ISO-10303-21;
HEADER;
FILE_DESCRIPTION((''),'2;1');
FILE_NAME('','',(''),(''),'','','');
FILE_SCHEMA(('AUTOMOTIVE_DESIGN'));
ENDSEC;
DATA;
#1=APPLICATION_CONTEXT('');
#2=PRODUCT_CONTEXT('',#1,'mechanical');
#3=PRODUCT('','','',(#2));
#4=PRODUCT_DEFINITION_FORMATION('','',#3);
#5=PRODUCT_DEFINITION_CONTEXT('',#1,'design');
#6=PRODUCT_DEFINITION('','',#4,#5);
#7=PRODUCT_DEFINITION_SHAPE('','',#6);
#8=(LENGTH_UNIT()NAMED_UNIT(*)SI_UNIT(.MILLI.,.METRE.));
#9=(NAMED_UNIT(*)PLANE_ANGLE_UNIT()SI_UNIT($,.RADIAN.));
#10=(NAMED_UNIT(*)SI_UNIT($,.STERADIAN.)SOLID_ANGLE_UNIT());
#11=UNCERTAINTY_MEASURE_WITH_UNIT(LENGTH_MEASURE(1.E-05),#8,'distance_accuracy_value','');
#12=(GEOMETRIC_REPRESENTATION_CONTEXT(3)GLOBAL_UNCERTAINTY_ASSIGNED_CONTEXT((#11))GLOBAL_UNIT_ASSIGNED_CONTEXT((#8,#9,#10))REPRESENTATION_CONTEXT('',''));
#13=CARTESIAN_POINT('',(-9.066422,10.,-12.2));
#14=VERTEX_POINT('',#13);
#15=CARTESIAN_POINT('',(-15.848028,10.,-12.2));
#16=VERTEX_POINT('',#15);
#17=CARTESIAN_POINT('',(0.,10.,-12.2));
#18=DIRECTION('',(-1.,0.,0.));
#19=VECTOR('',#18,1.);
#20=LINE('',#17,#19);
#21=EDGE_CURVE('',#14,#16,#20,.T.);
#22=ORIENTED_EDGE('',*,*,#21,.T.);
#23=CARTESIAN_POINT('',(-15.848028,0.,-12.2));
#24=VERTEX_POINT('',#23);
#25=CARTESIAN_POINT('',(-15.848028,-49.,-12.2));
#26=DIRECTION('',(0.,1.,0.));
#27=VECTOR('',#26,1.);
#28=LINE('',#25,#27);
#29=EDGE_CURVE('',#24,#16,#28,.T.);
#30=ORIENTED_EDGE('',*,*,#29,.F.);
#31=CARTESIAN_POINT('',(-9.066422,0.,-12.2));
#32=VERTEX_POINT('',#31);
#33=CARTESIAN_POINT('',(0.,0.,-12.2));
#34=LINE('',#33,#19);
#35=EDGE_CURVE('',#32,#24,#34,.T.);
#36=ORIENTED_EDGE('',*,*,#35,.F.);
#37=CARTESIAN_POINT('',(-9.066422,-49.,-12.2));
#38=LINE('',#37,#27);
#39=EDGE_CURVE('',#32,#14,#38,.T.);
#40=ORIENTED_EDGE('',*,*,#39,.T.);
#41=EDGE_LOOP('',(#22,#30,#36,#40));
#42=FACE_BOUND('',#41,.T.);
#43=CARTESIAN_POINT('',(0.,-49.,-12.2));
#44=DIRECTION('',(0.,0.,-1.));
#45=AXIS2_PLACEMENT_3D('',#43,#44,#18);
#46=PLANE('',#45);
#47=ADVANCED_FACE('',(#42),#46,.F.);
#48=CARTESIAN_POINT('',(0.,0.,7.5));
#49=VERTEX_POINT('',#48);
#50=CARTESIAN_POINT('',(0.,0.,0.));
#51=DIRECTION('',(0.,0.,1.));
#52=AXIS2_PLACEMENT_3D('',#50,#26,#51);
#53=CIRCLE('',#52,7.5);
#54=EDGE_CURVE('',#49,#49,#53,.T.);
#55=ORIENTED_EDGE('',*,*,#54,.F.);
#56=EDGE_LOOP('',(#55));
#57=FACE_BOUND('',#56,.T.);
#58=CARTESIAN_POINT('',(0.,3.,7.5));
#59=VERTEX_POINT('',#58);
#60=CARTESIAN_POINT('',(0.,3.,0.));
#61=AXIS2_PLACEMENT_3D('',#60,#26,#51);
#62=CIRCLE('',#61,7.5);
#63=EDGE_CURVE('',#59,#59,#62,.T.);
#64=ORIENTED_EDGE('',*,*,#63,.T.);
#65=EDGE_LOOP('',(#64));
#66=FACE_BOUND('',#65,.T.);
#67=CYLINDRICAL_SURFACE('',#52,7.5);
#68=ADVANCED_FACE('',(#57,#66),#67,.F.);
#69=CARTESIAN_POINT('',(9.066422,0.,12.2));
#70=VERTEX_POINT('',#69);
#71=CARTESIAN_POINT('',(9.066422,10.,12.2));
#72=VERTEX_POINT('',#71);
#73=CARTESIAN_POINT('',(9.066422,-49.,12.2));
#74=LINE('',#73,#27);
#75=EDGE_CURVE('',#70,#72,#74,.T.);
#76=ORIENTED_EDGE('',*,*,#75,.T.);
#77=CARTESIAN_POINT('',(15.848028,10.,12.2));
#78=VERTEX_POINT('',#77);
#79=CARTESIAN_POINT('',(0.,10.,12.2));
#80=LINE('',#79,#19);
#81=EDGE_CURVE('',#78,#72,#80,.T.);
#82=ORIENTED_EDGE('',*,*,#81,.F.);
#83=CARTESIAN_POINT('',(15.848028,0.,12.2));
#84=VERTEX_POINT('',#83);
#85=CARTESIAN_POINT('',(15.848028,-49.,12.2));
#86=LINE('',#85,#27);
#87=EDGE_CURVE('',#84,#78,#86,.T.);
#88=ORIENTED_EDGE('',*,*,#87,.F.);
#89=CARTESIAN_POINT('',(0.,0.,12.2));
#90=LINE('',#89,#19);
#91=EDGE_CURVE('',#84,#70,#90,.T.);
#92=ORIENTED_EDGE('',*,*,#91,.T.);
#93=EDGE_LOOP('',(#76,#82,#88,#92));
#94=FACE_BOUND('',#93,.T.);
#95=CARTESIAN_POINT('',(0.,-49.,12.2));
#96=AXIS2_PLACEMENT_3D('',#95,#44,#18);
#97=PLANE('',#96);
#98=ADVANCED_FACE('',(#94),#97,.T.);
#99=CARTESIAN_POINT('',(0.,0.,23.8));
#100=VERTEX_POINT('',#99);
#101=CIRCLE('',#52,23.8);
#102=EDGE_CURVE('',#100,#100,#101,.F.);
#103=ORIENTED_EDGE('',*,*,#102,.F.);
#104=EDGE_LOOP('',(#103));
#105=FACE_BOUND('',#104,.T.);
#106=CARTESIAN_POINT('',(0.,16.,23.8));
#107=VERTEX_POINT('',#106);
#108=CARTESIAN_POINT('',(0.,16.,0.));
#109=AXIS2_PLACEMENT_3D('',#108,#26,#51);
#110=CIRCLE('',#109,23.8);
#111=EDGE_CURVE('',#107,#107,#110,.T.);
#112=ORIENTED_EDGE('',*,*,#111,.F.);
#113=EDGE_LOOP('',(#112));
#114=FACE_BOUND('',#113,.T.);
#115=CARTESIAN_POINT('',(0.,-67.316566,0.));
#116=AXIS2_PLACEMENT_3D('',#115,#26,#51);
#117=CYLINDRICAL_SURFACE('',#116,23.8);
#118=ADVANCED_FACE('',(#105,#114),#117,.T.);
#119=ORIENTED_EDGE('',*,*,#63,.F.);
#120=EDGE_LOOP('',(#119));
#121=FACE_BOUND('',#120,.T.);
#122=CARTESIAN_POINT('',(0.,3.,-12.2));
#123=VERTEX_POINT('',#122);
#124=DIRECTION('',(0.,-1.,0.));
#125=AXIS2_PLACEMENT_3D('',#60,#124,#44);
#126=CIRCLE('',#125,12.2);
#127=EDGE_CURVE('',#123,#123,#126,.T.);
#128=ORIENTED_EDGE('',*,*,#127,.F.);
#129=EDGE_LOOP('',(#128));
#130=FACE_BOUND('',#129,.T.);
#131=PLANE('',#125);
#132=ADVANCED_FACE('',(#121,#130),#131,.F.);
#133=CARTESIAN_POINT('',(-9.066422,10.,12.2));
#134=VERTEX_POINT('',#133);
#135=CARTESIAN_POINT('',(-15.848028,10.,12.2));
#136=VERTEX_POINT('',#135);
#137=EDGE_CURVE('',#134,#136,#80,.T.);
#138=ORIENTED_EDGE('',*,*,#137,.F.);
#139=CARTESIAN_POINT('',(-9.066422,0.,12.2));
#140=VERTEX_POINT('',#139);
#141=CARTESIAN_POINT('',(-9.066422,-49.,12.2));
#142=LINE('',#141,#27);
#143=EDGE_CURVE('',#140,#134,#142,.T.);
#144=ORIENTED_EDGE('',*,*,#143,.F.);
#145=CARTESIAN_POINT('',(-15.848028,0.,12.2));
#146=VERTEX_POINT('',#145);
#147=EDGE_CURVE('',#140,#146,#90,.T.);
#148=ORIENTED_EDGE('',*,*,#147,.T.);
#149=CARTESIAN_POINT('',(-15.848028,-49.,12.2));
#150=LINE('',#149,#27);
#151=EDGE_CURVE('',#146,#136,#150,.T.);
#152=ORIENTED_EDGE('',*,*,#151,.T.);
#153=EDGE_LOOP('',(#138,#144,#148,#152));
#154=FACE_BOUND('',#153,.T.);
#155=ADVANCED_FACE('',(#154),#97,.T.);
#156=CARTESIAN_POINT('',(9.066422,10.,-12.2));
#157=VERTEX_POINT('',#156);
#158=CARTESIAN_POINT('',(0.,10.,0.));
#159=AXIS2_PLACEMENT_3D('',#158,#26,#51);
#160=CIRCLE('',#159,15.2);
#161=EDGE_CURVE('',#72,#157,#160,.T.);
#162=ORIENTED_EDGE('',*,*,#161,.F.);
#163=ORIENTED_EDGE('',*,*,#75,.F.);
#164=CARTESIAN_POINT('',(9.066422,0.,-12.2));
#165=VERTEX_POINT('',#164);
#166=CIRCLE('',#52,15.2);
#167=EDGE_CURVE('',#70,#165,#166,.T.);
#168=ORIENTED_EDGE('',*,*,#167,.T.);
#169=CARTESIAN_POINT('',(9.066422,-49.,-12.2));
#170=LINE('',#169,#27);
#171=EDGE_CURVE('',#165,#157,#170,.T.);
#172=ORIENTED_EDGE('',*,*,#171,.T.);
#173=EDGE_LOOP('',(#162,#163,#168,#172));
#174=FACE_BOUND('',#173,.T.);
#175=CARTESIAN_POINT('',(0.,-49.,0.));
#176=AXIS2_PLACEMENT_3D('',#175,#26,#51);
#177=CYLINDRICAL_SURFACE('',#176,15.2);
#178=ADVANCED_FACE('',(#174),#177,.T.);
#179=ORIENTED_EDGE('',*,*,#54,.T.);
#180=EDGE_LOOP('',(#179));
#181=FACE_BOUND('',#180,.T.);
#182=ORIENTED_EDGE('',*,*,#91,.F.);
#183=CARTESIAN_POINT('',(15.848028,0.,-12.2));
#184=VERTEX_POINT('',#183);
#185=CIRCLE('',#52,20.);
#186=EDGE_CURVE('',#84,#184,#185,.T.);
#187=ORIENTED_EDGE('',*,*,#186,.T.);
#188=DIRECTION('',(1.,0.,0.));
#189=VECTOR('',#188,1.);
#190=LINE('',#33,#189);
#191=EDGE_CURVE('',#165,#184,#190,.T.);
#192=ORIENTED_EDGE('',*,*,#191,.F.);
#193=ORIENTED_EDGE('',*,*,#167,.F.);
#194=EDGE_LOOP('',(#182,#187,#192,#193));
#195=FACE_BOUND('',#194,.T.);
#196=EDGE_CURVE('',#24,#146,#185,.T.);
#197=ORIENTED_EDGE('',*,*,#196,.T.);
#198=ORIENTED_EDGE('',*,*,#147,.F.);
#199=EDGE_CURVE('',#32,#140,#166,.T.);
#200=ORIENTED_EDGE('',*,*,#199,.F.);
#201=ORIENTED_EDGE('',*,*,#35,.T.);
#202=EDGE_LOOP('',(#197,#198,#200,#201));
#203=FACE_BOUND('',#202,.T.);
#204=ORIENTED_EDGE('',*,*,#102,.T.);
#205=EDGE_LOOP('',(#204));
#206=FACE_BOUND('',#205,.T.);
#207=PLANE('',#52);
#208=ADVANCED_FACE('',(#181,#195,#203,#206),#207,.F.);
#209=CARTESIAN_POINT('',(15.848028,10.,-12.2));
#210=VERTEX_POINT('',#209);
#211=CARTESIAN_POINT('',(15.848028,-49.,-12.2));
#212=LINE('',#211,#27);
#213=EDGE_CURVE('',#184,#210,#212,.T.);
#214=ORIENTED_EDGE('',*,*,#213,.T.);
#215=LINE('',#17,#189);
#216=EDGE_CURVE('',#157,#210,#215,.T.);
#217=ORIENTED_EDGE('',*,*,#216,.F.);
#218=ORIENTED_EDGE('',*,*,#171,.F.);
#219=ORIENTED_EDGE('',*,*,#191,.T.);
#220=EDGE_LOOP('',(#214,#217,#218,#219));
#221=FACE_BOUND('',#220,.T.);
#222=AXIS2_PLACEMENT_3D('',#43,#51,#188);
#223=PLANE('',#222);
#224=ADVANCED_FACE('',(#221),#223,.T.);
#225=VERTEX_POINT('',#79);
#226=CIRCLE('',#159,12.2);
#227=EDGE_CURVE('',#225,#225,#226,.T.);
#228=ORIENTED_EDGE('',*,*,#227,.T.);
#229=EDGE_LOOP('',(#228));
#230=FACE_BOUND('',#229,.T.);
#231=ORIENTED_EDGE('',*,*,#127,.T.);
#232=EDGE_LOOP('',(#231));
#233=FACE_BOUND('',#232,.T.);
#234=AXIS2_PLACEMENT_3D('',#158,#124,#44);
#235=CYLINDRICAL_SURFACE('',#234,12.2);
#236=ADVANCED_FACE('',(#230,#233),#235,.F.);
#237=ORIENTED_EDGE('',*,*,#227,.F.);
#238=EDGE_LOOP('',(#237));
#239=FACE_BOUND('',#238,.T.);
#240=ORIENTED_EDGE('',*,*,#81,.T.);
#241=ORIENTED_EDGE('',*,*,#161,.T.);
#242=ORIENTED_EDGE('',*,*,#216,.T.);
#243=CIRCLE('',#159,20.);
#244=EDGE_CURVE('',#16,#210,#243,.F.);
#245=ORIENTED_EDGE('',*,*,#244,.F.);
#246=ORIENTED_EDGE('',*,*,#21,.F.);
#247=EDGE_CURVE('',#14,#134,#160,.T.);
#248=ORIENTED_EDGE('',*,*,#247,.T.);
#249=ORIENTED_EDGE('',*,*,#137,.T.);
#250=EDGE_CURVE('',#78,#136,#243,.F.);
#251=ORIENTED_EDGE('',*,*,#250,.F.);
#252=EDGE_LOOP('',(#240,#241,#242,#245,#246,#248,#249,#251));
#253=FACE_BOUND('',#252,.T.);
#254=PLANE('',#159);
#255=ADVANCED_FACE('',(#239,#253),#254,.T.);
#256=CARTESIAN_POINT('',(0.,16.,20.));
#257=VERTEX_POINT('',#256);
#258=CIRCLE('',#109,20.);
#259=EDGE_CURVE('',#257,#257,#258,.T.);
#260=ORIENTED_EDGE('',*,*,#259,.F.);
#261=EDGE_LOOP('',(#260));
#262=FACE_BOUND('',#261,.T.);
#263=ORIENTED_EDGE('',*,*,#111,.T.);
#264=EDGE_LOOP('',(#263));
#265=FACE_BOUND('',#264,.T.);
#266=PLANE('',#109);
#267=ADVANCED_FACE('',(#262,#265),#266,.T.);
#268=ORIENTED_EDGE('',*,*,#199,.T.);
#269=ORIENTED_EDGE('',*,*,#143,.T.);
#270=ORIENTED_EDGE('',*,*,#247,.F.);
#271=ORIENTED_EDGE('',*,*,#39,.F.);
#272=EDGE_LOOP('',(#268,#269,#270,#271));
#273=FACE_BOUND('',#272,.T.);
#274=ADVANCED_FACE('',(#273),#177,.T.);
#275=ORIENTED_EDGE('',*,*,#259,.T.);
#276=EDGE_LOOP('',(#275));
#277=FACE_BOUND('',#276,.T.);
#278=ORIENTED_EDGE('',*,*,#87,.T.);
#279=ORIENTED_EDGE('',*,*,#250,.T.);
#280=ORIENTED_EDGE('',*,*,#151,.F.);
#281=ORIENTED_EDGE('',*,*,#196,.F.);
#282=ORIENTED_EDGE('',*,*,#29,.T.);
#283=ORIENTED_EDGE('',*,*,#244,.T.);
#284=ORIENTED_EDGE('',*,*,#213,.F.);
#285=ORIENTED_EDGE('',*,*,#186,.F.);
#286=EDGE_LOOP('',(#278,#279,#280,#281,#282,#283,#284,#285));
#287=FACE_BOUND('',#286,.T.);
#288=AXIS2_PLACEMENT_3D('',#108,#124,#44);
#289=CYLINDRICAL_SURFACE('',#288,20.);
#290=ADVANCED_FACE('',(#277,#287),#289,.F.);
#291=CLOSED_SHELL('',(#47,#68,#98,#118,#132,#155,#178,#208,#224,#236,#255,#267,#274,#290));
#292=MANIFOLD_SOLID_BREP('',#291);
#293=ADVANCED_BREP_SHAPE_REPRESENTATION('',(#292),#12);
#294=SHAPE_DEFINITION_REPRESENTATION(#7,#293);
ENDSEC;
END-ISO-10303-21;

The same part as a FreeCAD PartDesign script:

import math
import FreeCAD as App
import Part
import Sketcher
Q = App.Units.Quantity

doc = App.newDocument("Part")
body = doc.addObject("PartDesign::Body", "Body")

sketch1 = body.newObject("Sketcher::SketchObject", "Sketch")
sketch1.AttachmentSupport = (doc.getObject("XZ_Plane"), [""])
sketch1.MapMode = "FlatFace"
sketch1.addGeometry([
    Part.Circle(App.Vector(0, 0, 0), App.Vector(0, 0, 1), 23.2),
    Part.Circle(App.Vector(0, 0, 0), App.Vector(0, 0, 1), 12.2),
], False)
sketch1.addConstraint([
    Sketcher.Constraint("Coincident", 0, 3, -1, 1),
    Sketcher.Constraint("Coincident", 1, 3, -1, 1),
    Sketcher.Constraint("Diameter", 0, Q("46.4 mm")),
    Sketcher.Constraint("Diameter", 1, Q("24.4 mm")),
])
pad1 = body.newObject("PartDesign::Pad", "Pad")
pad1.Profile = sketch1
pad1.Length = 10
pad1.Reversed = True

sketch2 = body.newObject("Sketcher::SketchObject", "Sketch001")
sketch2.AttachmentSupport = (doc.getObject("XZ_Plane"), [""])
sketch2.MapMode = "FlatFace"
sketch2.addGeometry(Part.Circle(App.Vector(0, 0, 0), App.Vector(0, 0, 1), 12.2), False)
sketch2.addConstraint([
    Sketcher.Constraint("Coincident", 0, 3, -1, 1),
    Sketcher.Constraint("Diameter", 0, Q("24.4 mm")),
])
pad2 = body.newObject("PartDesign::Pad", "Pad001")
pad2.Profile = sketch2
pad2.Length = 3
pad2.Reversed = True

sketch3 = body.newObject("Sketcher::SketchObject", "Sketch002")
sketch3.AttachmentSupport = (doc.getObject("XZ_Plane"), [""])
sketch3.MapMode = "FlatFace"
sketch3.AttachmentOffset = App.Placement(App.Vector(0, 0, -3), App.Rotation())
sketch3.addGeometry(Part.Circle(App.Vector(0, 0, 0), App.Vector(0, 0, 1), 7.5), False)
sketch3.addConstraint([
    Sketcher.Constraint("Coincident", 0, 3, -1, 1),
    Sketcher.Constraint("Diameter", 0, Q("15 mm")),
])
pocket1 = body.newObject("PartDesign::Pocket", "Pocket")
pocket1.Profile = sketch3
pocket1.Length = 3
pocket1.Reversed = True

sketch4 = body.newObject("Sketcher::SketchObject", "Sketch003")
sketch4.AttachmentSupport = (doc.getObject("XZ_Plane"), [""])
sketch4.MapMode = "FlatFace"
sketch4.AttachmentOffset = App.Placement(App.Vector(0, 0, -10), App.Rotation())
sketch4.addGeometry([
    Part.Circle(App.Vector(0, 0, 0), App.Vector(0, 0, 1), 23.2),
    Part.Circle(App.Vector(0, 0, 0), App.Vector(0, 0, 1), 20),
], False)
sketch4.addConstraint([
    Sketcher.Constraint("Coincident", 0, 3, -1, 1),
    Sketcher.Constraint("Coincident", 1, 3, -1, 1),
    Sketcher.Constraint("Diameter", 1, Q("40 mm")),
    Sketcher.Constraint("Diameter", 0, Q("46.4 mm")),
])
pad3 = body.newObject("PartDesign::Pad", "Pad002")
pad3.Profile = sketch4
pad3.Length = 6
pad3.Reversed = True

sketch5 = body.newObject("Sketcher::SketchObject", "Sketch004")
sketch5.AttachmentSupport = (doc.getObject("XZ_Plane"), [""])
sketch5.MapMode = "FlatFace"
sketch5.AttachmentOffset = App.Placement(App.Vector(0, 0, -10), App.Rotation())
sketch5.addGeometry([
    Part.LineSegment(App.Vector(15.848028, -12.2, 0), App.Vector(9.066422, -12.2, 0)),
    Part.ArcOfCircle(Part.Circle(App.Vector(-0.000001, 0, 0), App.Vector(0, 0, 1), 15.200001), math.radians(-53.382136), math.radians(53.382136)),
    Part.LineSegment(App.Vector(9.066422, 12.2, 0), App.Vector(15.848028, 12.2, 0)),
    Part.ArcOfCircle(Part.Circle(App.Vector(0.000001, 0, 0), App.Vector(0, 0, 1), 19.999999), math.radians(-37.589505), math.radians(37.589505)),
    Part.ArcOfCircle(Part.Circle(App.Vector(0.000001, 0, 0), App.Vector(0, 0, 1), 15.200001), math.radians(126.617864), math.radians(233.382136)),
    Part.LineSegment(App.Vector(-9.066422, -12.2, 0), App.Vector(-15.848028, -12.2, 0)),
    Part.ArcOfCircle(Part.Circle(App.Vector(-0.000001, 0, 0), App.Vector(0, 0, 1), 19.999999), math.radians(142.410495), math.radians(217.589505)),
    Part.LineSegment(App.Vector(-15.848028, 12.2, 0), App.Vector(-9.066422, 12.2, 0)),
], False)
sketch5.addConstraint([
    Sketcher.Constraint("Coincident", 0, 2, 1, 1),
    Sketcher.Constraint("Coincident", 1, 2, 2, 1),
    Sketcher.Constraint("Coincident", 2, 2, 3, 2),
    Sketcher.Constraint("Coincident", 3, 1, 0, 1),
    Sketcher.Constraint("Coincident", 4, 2, 5, 1),
    Sketcher.Constraint("Coincident", 5, 2, 6, 2),
    Sketcher.Constraint("Coincident", 6, 1, 7, 1),
    Sketcher.Constraint("Coincident", 7, 2, 4, 1),
    Sketcher.Constraint("Horizontal", 0),
    Sketcher.Constraint("Horizontal", 2),
    Sketcher.Constraint("Horizontal", 5),
    Sketcher.Constraint("Horizontal", 7),
    Sketcher.Constraint("Coincident", 1, 3, -1, 1),
    Sketcher.Constraint("Coincident", 3, 3, -1, 1),
    Sketcher.Constraint("Coincident", 4, 3, -1, 1),
    Sketcher.Constraint("Coincident", 6, 3, -1, 1),
    Sketcher.Constraint("Equal", 1, 4),
    Sketcher.Constraint("Equal", 3, 6),
    Sketcher.Constraint("Horizontal", 3, 1, 4, 2),
    Sketcher.Constraint("Horizontal", 2, 2, 6, 1),
    Sketcher.Constraint("Vertical", 0, 2, 1, 2),
    Sketcher.Constraint("Radius", 3, Q("19.999999 mm")),
    Sketcher.Constraint("Radius", 1, Q("15.200001 mm")),
    Sketcher.Constraint("DistanceY", 0, 2, -1, 1, Q("12.2 mm")),
])
pocket2 = body.newObject("PartDesign::Pocket", "Pocket001")
pocket2.Profile = sketch5
pocket2.Length = 59
pocket2.Reversed = True

sketch6 = body.newObject("Sketcher::SketchObject", "Sketch005")
sketch6.AttachmentSupport = (doc.getObject("XZ_Plane"), [""])
sketch6.MapMode = "FlatFace"
sketch6.AttachmentOffset = App.Placement(App.Vector(0, 0, -16), App.Rotation())
sketch6.addGeometry([
    Part.Circle(App.Vector(0, 0, 0), App.Vector(0, 0, 1), 23.8),
    Part.Circle(App.Vector(0, 0, 0), App.Vector(0, 0, 1), 23.2),
], False)
sketch6.addConstraint([
    Sketcher.Constraint("Coincident", 0, 3, -1, 1),
    Sketcher.Constraint("Coincident", 1, 3, -1, 1),
    Sketcher.Constraint("Diameter", 0, Q("47.6 mm")),
    Sketcher.Constraint("Diameter", 1, Q("46.4 mm")),
])
pad4 = body.newObject("PartDesign::Pad", "Pad003")
pad4.Profile = sketch6
pad4.Length = 16

doc.recompute()
